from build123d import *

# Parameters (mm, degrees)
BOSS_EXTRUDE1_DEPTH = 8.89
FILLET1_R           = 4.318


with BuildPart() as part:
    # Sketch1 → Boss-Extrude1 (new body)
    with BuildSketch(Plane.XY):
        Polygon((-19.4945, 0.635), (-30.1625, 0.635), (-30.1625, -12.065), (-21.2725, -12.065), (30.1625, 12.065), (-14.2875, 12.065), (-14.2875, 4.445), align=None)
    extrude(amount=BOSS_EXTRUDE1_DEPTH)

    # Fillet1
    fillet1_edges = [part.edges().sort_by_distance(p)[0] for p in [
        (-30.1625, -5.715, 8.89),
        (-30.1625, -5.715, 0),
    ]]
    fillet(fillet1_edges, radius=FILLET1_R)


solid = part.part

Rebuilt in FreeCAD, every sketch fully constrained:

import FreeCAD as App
import Part
import Sketcher

V = App.Vector
Q = App.Units.Quantity


def edges_at(feature, points):
    """Names of the edges that pass closest to the given points."""
    edges = feature.Shape.Edges
    near = lambda p: min(range(len(edges)), key=lambda i: edges[i].distToShape(Part.Vertex(*p))[0])
    return sorted({f"Edge{near(p) + 1}" for p in points})


def add_polygon(sketch, points):
    """Adds a closed chain of lines whose ends are joined by coincident constraints."""
    first, n = sketch.GeometryCount, len(points)
    for a, b in zip(points, points[1:] + points[:1]):
        sketch.addGeometry(Part.LineSegment(App.Vector(*a, 0), App.Vector(*b, 0)), False)
    for i in range(n):
        sketch.addConstraint(Sketcher.Constraint("Coincident", first + i, 2, first + (i + 1) % n, 1))

doc = App.newDocument("Part")
body = doc.addObject("PartDesign::Body", "Body")

sketch1 = body.newObject("Sketcher::SketchObject", "Sketch")
sketch1.AttachmentSupport = (doc.getObject("XY_Plane"), [""])
sketch1.MapMode = "FlatFace"
add_polygon(sketch1, [(-19, 1), (-30, 1), (-30, -12), (-21, -12), (30, 12), (-14, 12), (-14, 4)])
sketch1.addConstraint([
    Sketcher.Constraint("Horizontal", 0),
    Sketcher.Constraint("Vertical", 1),
    Sketcher.Constraint("Horizontal", 2),
    Sketcher.Constraint("Horizontal", 4),
    Sketcher.Constraint("Vertical", 5),
    Sketcher.Constraint("Symmetric", 1, 2, 3, 2, -1, 1),
    Sketcher.Constraint("DistanceY", 1, 2, 1, 1, Q("0.5 in")),
    Sketcher.Constraint("DistanceY", 5, 2, 5, 1, Q("0.3 in")),
    Sketcher.Constraint("DistanceX", 0, 2, 0, 1, Q("0.42 in")),
    Sketcher.Constraint("DistanceX", 2, 1, 2, 2, Q("0.35 in")),
    Sketcher.Constraint("DistanceX", 4, 2, 4, 1, Q("1.75 in")),
    Sketcher.Constraint("DistanceY", 2, 2, 3, 2, Q("0.95 in")),
    Sketcher.Constraint("DistanceX", 0, 2, -1, 1, Q("1.1875 in")),
])
pad1 = body.newObject("PartDesign::Pad", "Pad")
pad1.Profile = sketch1
pad1.Length = Q("0.35 in")
doc.recompute()

fillet = body.newObject("PartDesign::Fillet", "Fillet")
fillet.Base = (pad1, edges_at(pad1, [(-30.163, -5.715, 8.89), (-30.163, -5.715, 0)]))
fillet.Radius = Q("0.17 in")

doc.recompute()
